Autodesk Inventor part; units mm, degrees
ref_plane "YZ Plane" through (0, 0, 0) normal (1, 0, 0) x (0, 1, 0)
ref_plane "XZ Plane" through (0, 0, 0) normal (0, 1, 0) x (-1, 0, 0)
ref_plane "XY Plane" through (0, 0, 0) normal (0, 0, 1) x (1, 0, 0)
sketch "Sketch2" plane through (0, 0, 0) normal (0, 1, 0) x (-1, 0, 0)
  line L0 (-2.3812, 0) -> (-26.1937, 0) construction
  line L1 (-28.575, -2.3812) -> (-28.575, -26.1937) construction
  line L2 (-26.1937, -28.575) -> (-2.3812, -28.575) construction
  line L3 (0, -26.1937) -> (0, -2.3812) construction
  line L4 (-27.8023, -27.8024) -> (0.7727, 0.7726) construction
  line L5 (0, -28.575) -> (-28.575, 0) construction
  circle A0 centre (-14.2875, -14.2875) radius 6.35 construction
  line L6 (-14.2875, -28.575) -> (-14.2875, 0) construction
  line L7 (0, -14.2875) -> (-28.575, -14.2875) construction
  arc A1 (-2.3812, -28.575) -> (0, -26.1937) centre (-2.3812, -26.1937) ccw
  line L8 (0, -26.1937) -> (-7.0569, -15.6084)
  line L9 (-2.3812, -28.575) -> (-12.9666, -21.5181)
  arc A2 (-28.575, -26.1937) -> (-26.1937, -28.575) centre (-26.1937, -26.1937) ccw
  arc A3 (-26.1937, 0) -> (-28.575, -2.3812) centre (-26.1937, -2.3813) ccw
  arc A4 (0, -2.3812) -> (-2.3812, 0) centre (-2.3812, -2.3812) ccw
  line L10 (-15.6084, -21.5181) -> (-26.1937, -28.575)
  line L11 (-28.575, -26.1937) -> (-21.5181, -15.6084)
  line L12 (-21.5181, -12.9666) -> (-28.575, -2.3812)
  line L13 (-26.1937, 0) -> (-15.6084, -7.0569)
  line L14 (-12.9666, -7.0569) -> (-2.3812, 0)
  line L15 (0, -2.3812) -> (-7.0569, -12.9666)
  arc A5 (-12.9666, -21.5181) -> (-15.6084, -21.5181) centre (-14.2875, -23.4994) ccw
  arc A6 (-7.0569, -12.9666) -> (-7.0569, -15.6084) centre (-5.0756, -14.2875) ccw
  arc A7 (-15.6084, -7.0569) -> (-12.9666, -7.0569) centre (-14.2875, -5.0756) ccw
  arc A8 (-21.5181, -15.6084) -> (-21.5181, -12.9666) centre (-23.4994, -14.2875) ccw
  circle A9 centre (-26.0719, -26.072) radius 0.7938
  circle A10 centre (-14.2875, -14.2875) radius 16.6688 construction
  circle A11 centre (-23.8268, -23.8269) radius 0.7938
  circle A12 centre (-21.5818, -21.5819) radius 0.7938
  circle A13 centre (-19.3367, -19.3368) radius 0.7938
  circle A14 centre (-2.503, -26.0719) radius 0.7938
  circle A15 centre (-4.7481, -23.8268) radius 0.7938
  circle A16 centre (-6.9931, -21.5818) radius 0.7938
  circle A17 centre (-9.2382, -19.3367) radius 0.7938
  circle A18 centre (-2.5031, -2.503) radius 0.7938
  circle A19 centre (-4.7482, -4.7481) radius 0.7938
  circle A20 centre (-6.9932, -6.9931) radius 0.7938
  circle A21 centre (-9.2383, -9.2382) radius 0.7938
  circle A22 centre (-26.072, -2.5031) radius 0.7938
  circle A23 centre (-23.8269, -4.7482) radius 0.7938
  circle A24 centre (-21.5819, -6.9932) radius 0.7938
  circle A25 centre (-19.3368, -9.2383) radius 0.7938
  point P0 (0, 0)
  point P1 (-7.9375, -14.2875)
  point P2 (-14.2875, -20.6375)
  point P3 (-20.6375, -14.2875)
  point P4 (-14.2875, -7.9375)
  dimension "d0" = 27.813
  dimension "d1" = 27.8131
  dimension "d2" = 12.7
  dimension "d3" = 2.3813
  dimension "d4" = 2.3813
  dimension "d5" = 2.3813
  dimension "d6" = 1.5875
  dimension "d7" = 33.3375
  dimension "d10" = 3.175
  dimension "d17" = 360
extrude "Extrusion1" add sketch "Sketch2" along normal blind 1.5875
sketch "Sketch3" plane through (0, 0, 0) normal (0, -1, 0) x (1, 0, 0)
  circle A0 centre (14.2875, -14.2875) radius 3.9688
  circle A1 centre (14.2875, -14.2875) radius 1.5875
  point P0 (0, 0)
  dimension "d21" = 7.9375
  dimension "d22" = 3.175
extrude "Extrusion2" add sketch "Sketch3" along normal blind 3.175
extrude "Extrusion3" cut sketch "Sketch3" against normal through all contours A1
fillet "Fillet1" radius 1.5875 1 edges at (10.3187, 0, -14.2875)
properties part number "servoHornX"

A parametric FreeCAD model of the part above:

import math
import FreeCAD as App
import Part
import Sketcher

V = App.Vector
Q = App.Units.Quantity


def edges_at(feature, points):
    """Names of the edges that pass closest to the given points."""
    edges = feature.Shape.Edges
    near = lambda p: min(range(len(edges)), key=lambda i: edges[i].distToShape(Part.Vertex(*p))[0])
    return sorted({f"Edge{near(p) + 1}" for p in points})

doc = App.newDocument("Part")
body = doc.addObject("PartDesign::Body", "Body")

# Sketch on XZ plane
sketch1 = doc.addObject("Sketcher::SketchObject", "Sketch")
body.addObject(sketch1)
sketch1.AttachmentSupport = (doc.XZ_Plane, [""])
sketch1.MapMode = "FlatFace"
sketch1.addGeometry(Part.LineSegment(V(12.9666, -21.5181, 0), V(2.3812, -28.575, 0)), False)
sketch1.addGeometry(Part.ArcOfCircle(Part.Circle(V(2.3812, -26.1937, 0), V(0, 0, 1), 2.3813), math.radians(180), math.radians(270)), False)
sketch1.addGeometry(Part.LineSegment(V(0, -26.1937, 0), V(7.0569, -15.6084, 0)), False)
sketch1.addGeometry(Part.ArcOfCircle(Part.Circle(V(5.0756, -14.2875, 0), V(0, 0, 1), 2.381245), math.radians(-33.690735), math.radians(33.690735)), False)
sketch1.addGeometry(Part.LineSegment(V(7.0569, -12.9666, 0), V(0, -2.3812, 0)), False)
sketch1.addGeometry(Part.ArcOfCircle(Part.Circle(V(2.3812, -2.3812, 0), V(0, 0, 1), 2.3812), math.radians(90), math.radians(180)), False)
sketch1.addGeometry(Part.LineSegment(V(2.3812, 0, 0), V(12.9666, -7.0569, 0)), False)
sketch1.addGeometry(Part.ArcOfCircle(Part.Circle(V(14.2875, -5.0756, 0), V(0, 0, 1), 2.381245), math.radians(-123.690735), math.radians(-56.309265)), False)
sketch1.addGeometry(Part.LineSegment(V(15.6084, -7.0569, 0), V(26.1937, 0, 0)), False)
sketch1.addGeometry(Part.ArcOfCircle(Part.Circle(V(26.1937, -2.3813, 0), V(0, 0, 1), 2.3813), math.radians(0.002406), math.radians(90)), False)
sketch1.addGeometry(Part.LineSegment(V(28.575, -2.3812, 0), V(21.5181, -12.9666, 0)), False)
sketch1.addGeometry(Part.ArcOfCircle(Part.Circle(V(23.4994, -14.2875, 0), V(0, 0, 1), 2.381245), math.radians(146.309265), math.radians(213.690735)), False)
sketch1.addGeometry(Part.LineSegment(V(21.5181, -15.6084, 0), V(28.575, -26.1937, 0)), False)
sketch1.addGeometry(Part.ArcOfCircle(Part.Circle(V(26.1937, -26.1937, 0), V(0, 0, 1), 2.3813), math.radians(-90), math.radians(0)), False)
sketch1.addGeometry(Part.LineSegment(V(26.1937, -28.575, 0), V(15.6084, -21.5181, 0)), False)
sketch1.addGeometry(Part.ArcOfCircle(Part.Circle(V(14.2875, -23.4994, 0), V(0, 0, 1), 2.381245), math.radians(56.309265), math.radians(123.690735)), False)
sketch1.addGeometry(Part.Circle(V(26.0719, -26.072, 0), V(0, 0, 1), 0.7938), False)
sketch1.addGeometry(Part.Circle(V(23.8268, -23.8269, 0), V(0, 0, 1), 0.7938), False)
sketch1.addGeometry(Part.Circle(V(21.5818, -21.5819, 0), V(0, 0, 1), 0.7938), False)
sketch1.addGeometry(Part.Circle(V(19.3367, -19.3368, 0), V(0, 0, 1), 0.7938), False)
sketch1.addGeometry(Part.Circle(V(2.503, -26.0719, 0), V(0, 0, 1), 0.7938), False)
sketch1.addGeometry(Part.Circle(V(4.7481, -23.8268, 0), V(0, 0, 1), 0.7938), False)
sketch1.addGeometry(Part.Circle(V(6.9931, -21.5818, 0), V(0, 0, 1), 0.7938), False)
sketch1.addGeometry(Part.Circle(V(9.2382, -19.3367, 0), V(0, 0, 1), 0.7938), False)
sketch1.addGeometry(Part.Circle(V(19.3368, -9.2383, 0), V(0, 0, 1), 0.7938), False)
sketch1.addGeometry(Part.Circle(V(21.5819, -6.9932, 0), V(0, 0, 1), 0.7938), False)
sketch1.addGeometry(Part.Circle(V(23.8269, -4.7482, 0), V(0, 0, 1), 0.7938), False)
sketch1.addGeometry(Part.Circle(V(26.072, -2.5031, 0), V(0, 0, 1), 0.7938), False)
sketch1.addGeometry(Part.Circle(V(9.2383, -9.2382, 0), V(0, 0, 1), 0.7938), False)
sketch1.addGeometry(Part.Circle(V(6.9932, -6.9931, 0), V(0, 0, 1), 0.7938), False)
sketch1.addGeometry(Part.Circle(V(4.7482, -4.7481, 0), V(0, 0, 1), 0.7938), False)
sketch1.addGeometry(Part.Circle(V(2.5031, -2.503, 0), V(0, 0, 1), 0.7938), False)
sketch1.addConstraint(Sketcher.Constraint("Coincident", 0, 2, 1, 2))
sketch1.addConstraint(Sketcher.Constraint("Coincident", 1, 1, 2, 1))
sketch1.addConstraint(Sketcher.Constraint("Tangent", 2, 2, 3, 1))
sketch1.addConstraint(Sketcher.Constraint("Tangent", 3, 2, 4, 1))
sketch1.addConstraint(Sketcher.Constraint("Coincident", 4, 2, 5, 2))
sketch1.addConstraint(Sketcher.Constraint("Coincident", 5, 1, 6, 1))
sketch1.addConstraint(Sketcher.Constraint("Tangent", 6, 2, 7, 1))
sketch1.addConstraint(Sketcher.Constraint("Tangent", 7, 2, 8, 1))
sketch1.addConstraint(Sketcher.Constraint("Coincident", 8, 2, 9, 2))
sketch1.addConstraint(Sketcher.Constraint("Coincident", 9, 1, 10, 1))
sketch1.addConstraint(Sketcher.Constraint("Tangent", 10, 2, 11, 1))
sketch1.addConstraint(Sketcher.Constraint("Tangent", 11, 2, 12, 1))
sketch1.addConstraint(Sketcher.Constraint("Coincident", 12, 2, 13, 2))
sketch1.addConstraint(Sketcher.Constraint("Coincident", 13, 1, 14, 1))
sketch1.addConstraint(Sketcher.Constraint("Tangent", 14, 2, 15, 1))
sketch1.addConstraint(Sketcher.Constraint("Tangent", 15, 2, 0, 1))
sketch1.addConstraint(Sketcher.Constraint("Equal", 1, 3))
sketch1.addConstraint(Sketcher.Constraint("Equal", 3, 5))
sketch1.addConstraint(Sketcher.Constraint("Equal", 5, 7))
sketch1.addConstraint(Sketcher.Constraint("Equal", 7, 9))
sketch1.addConstraint(Sketcher.Constraint("Equal", 9, 11))
sketch1.addConstraint(Sketcher.Constraint("Equal", 11, 13))
sketch1.addConstraint(Sketcher.Constraint("Equal", 13, 15))
sketch1.addConstraint(Sketcher.Constraint("Equal", 16, 17))
sketch1.addConstraint(Sketcher.Constraint("Equal", 17, 18))
sketch1.addConstraint(Sketcher.Constraint("Equal", 18, 19))
sketch1.addConstraint(Sketcher.Constraint("Equal", 19, 20))
sketch1.addConstraint(Sketcher.Constraint("Equal", 20, 21))
sketch1.addConstraint(Sketcher.Constraint("Equal", 21, 22))
sketch1.addConstraint(Sketcher.Constraint("Equal", 22, 23))
sketch1.addConstraint(Sketcher.Constraint("Equal", 23, 24))
sketch1.addConstraint(Sketcher.Constraint("Equal", 24, 25))
sketch1.addConstraint(Sketcher.Constraint("Equal", 25, 26))
sketch1.addConstraint(Sketcher.Constraint("Equal", 26, 27))
sketch1.addConstraint(Sketcher.Constraint("Equal", 27, 28))
sketch1.addConstraint(Sketcher.Constraint("Equal", 28, 29))
sketch1.addConstraint(Sketcher.Constraint("Equal", 29, 30))
sketch1.addConstraint(Sketcher.Constraint("Equal", 30, 31))
sketch1.addConstraint(Sketcher.Constraint("PointOnObject", 1, 1, -2))
sketch1.addConstraint(Sketcher.Constraint("PointOnObject", 4, 2, -2))
sketch1.addConstraint(Sketcher.Constraint("PointOnObject", 5, 1, -1))
sketch1.addConstraint(Sketcher.Constraint("PointOnObject", 8, 2, -1))
sketch1.addConstraint(Sketcher.Constraint("Perpendicular", 0, 4))
sketch1.addConstraint(Sketcher.Constraint("Perpendicular", 2, 6))
sketch1.addConstraint(Sketcher.Constraint("Perpendicular", 4, 8))
sketch1.addConstraint(Sketcher.Constraint("Perpendicular", 6, 10))
sketch1.addConstraint(Sketcher.Constraint("Perpendicular", 8, 12))
sketch1.addConstraint(Sketcher.Constraint("Perpendicular", 10, 14))
sketch1.addConstraint(Sketcher.Constraint("Horizontal", 3, 3, 11, 3))
sketch1.addConstraint(Sketcher.Constraint("Horizontal", 1, 3, 13, 3))
sketch1.addConstraint(Sketcher.Constraint("Horizontal", 16, 3, 20, 3))
sketch1.addConstraint(Sketcher.Constraint("Horizontal", 17, 3, 21, 3))
sketch1.addConstraint(Sketcher.Constraint("Horizontal", 18, 3, 22, 3))
sketch1.addConstraint(Sketcher.Constraint("Horizontal", 19, 3, 23, 3))
sketch1.addConstraint(Sketcher.Constraint("Horizontal", 24, 3, 28, 3))
sketch1.addConstraint(Sketcher.Constraint("Horizontal", 25, 3, 29, 3))
sketch1.addConstraint(Sketcher.Constraint("Horizontal", 26, 3, 30, 3))
sketch1.addConstraint(Sketcher.Constraint("Horizontal", 27, 3, 31, 3))
sketch1.addConstraint(Sketcher.Constraint("Horizontal", 13, 3, 1, 1))
sketch1.addConstraint(Sketcher.Constraint("Horizontal", 9, 3, 4, 2))
sketch1.addConstraint(Sketcher.Constraint("Horizontal", 6, 2, 7, 2))
sketch1.addConstraint(Sketcher.Constraint("Horizontal", 4, 2, 9, 1))
sketch1.addConstraint(Sketcher.Constraint("Horizontal", 1, 1, 12, 2))
sketch1.addConstraint(Sketcher.Constraint("Vertical", 7, 3, 15, 3))
sketch1.addConstraint(Sketcher.Constraint("Vertical", 19, 3, 24, 3))
sketch1.addConstraint(Sketcher.Constraint("Vertical", 18, 3, 25, 3))
sketch1.addConstraint(Sketcher.Constraint("Vertical", 17, 3, 26, 3))
sketch1.addConstraint(Sketcher.Constraint("Vertical", 16, 3, 27, 3))
sketch1.addConstraint(Sketcher.Constraint("Vertical", 23, 3, 28, 3))
sketch1.addConstraint(Sketcher.Constraint("Vertical", 22, 3, 29, 3))
sketch1.addConstraint(Sketcher.Constraint("Vertical", 21, 3, 30, 3))
sketch1.addConstraint(Sketcher.Constraint("Vertical", 20, 3, 31, 3))
sketch1.addConstraint(Sketcher.Constraint("Vertical", 5, 3, 0, 2))
sketch1.addConstraint(Sketcher.Constraint("Vertical", 0, 2, 5, 1))
sketch1.addConstraint(Sketcher.Constraint("Vertical", 13, 3, 8, 2))
sketch1.addConstraint(Sketcher.Constraint("Equal", 0, 2))
sketch1.addConstraint(Sketcher.Constraint("Diameter", 16, Q("0.0625 in")))
sketch1.addConstraint(Sketcher.Constraint("Radius", 1, Q("0.093752 in")))
sketch1.addConstraint(Sketcher.Constraint("Angle", 0, Q("-146.31 deg")))
sketch1.addConstraint(Sketcher.Constraint("DistanceY", 1, 3, -1, 1, Q("1.031248 in")))
sketch1.addConstraint(Sketcher.Constraint("DistanceY", 19, 3, -1, 1, Q("0.7613 in")))
sketch1.addConstraint(Sketcher.Constraint("DistanceX", -1, 1, 23, 3, Q("0.3637 in")))
sketch1.addConstraint(Sketcher.Constraint("DistanceX", -1, 1, 24, 3, Q("0.7613 in")))
sketch1.addConstraint(Sketcher.Constraint("DistanceY", 28, 3, -1, 1, Q("0.3637 in")))
sketch1.addConstraint(Sketcher.Constraint("DistanceX", 16, 3, 13, 3, Q("0.0048 in")))
sketch1.addConstraint(Sketcher.Constraint("DistanceY", 13, 3, 16, 3, Q("0.0048 in")))
sketch1.addConstraint(Sketcher.Constraint("DistanceX", 17, 3, 16, 3, Q("0.0884 in")))
sketch1.addConstraint(Sketcher.Constraint("DistanceY", 16, 3, 17, 3, Q("0.0884 in")))
sketch1.addConstraint(Sketcher.Constraint("DistanceY", 15, 3, 18, 3, Q("0.0755 in")))
sketch1.addConstraint(Sketcher.Constraint("DistanceX", 18, 3, 11, 3, Q("0.0755 in")))
sketch1.addConstraint(Sketcher.Constraint("DistanceX", 1, 3, 20, 3, Q("0.0048 in")))
sketch1.addConstraint(Sketcher.Constraint("DistanceX", 20, 3, 21, 3, Q("0.0884 in")))
sketch1.addConstraint(Sketcher.Constraint("DistanceX", 3, 3, 22, 3, Q("0.0755 in")))
sketch1.addConstraint(Sketcher.Constraint("DistanceY", 24, 3, 25, 3, Q("0.0884 in")))
sketch1.addConstraint(Sketcher.Constraint("DistanceY", 7, 3, 26, 3, Q("0.0129 in")))
sketch1.addConstraint(Sketcher.Constraint("DistanceY", 27, 3, 9, 3, Q("0.0048 in")))
pad1 = doc.addObject("PartDesign::Pad", "Pad")
body.addObject(pad1)
pad1.Profile = sketch1
pad1.Length = Q("0.0625 in")
pad1.Reversed = True

# Sketch on XZ plane
sketch2 = doc.addObject("Sketcher::SketchObject", "Sketch001")
body.addObject(sketch2)
sketch2.AttachmentSupport = (doc.XZ_Plane, [""])
sketch2.MapMode = "FlatFace"
sketch2.addGeometry(Part.Circle(V(14.2875, -14.2875, 0), V(0, 0, 1), 3.9688), False)
sketch2.addGeometry(Part.Circle(V(14.2875, -14.2875, 0), V(0, 0, 1), 1.5875), False)
sketch2.addConstraint(Sketcher.Constraint("Coincident", 1, 3, 0, 3))
sketch2.addConstraint(Sketcher.Constraint("Diameter", 0, Q("0.3125 in")))
sketch2.addConstraint(Sketcher.Constraint("Diameter", 1, Q("0.125 in")))
sketch2.addConstraint(Sketcher.Constraint("DistanceX", -1, 1, 0, 3, Q("0.5625 in")))
sketch2.addConstraint(Sketcher.Constraint("DistanceY", 0, 3, -1, 1, Q("0.5625 in")))
pad2 = doc.addObject("PartDesign::Pad", "Pad001")
body.addObject(pad2)
pad2.Profile = sketch2
pad2.Length = Q("0.125 in")

# Sketch on XZ plane
sketch3 = doc.addObject("Sketcher::SketchObject", "Sketch002")
body.addObject(sketch3)
sketch3.AttachmentSupport = (doc.XZ_Plane, [""])
sketch3.MapMode = "FlatFace"
sketch3.addGeometry(Part.Circle(V(14.2875, -14.2875, 0), V(0, 0, 1), 1.5875), False)
sketch3.addConstraint(Sketcher.Constraint("Diameter", 0, Q("0.125 in")))
sketch3.addConstraint(Sketcher.Constraint("DistanceX", -1, 1, 0, 3, Q("0.5625 in")))
sketch3.addConstraint(Sketcher.Constraint("DistanceY", 0, 3, -1, 1, Q("0.5625 in")))
pocket1 = doc.addObject("PartDesign::Pocket", "Pocket")
body.addObject(pocket1)
pocket1.Profile = sketch3
pocket1.Type = "ThroughAll"
doc.recompute()

fillet = doc.addObject("PartDesign::Fillet", "Fillet")
body.addObject(fillet)
fillet.Base = (pocket1, edges_at(pocket1, [(10.319, 0, -14.287)]))
fillet.Radius = Q("0.0625 in")

doc.recompute()
